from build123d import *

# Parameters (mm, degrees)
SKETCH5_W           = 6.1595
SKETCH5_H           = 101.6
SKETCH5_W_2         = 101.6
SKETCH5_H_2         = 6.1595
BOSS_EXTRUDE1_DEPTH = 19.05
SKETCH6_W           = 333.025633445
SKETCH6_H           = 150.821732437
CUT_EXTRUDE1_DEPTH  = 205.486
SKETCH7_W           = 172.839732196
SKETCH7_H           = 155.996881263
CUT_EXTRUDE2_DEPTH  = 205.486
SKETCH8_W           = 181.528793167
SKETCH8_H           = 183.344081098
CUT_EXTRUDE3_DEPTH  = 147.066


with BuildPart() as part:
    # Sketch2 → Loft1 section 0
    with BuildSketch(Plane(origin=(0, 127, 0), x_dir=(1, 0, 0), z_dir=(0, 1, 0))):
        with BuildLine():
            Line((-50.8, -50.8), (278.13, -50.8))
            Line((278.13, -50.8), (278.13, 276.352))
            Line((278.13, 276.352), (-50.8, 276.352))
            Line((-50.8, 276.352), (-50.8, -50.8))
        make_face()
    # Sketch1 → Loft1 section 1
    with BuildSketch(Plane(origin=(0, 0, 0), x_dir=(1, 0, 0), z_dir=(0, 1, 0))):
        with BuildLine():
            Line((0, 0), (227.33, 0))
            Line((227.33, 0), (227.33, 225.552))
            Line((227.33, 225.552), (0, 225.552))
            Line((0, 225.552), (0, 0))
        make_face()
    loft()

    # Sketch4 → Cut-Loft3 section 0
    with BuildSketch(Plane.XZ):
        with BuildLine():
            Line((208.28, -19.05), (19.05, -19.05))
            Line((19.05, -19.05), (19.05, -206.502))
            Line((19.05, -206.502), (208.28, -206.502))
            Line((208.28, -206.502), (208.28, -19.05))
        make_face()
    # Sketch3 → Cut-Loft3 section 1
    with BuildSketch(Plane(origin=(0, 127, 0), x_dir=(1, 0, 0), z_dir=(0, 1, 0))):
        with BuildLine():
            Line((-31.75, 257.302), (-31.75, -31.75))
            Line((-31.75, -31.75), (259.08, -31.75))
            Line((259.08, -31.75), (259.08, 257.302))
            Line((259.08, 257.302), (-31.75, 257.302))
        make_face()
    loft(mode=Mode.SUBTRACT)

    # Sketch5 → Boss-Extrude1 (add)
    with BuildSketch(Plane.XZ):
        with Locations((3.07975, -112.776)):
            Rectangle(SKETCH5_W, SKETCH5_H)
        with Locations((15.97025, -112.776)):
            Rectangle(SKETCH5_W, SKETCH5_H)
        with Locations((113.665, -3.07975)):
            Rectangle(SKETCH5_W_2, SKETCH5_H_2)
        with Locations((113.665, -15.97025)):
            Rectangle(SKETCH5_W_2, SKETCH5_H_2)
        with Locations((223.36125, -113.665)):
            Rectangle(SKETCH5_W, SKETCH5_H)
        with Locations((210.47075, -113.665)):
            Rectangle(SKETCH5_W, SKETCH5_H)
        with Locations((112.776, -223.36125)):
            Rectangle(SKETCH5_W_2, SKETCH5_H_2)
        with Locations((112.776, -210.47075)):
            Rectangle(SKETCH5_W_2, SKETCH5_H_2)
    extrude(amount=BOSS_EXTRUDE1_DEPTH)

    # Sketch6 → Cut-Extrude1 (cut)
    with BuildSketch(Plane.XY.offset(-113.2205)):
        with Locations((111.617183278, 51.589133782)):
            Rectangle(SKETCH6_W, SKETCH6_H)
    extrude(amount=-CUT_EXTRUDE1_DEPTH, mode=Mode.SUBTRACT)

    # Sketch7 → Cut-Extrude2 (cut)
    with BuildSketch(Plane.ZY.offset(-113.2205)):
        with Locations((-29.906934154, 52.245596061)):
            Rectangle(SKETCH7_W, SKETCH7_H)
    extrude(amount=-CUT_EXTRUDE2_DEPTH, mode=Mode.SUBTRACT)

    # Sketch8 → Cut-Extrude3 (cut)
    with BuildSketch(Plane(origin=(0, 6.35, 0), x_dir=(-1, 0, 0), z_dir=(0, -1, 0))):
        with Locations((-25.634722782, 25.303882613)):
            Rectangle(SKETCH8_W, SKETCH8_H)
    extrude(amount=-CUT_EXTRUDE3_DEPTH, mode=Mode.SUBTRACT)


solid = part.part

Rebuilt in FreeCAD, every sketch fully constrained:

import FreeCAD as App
import Part
import Sketcher

V = App.Vector
Q = App.Units.Quantity

doc = App.newDocument("Part")
body = doc.addObject("PartDesign::Body", "Body")

# Sketch on XZ plane
sketch1 = body.newObject("Sketcher::SketchObject", "Sketch")
sketch1.AttachmentSupport = (doc.getObject("XZ_Plane"), [""])
sketch1.MapMode = "FlatFace"
sketch1.AttachmentOffset = App.Placement(V(0, 0, -5 * 25.4), App.Rotation())
sketch1.addGeometry(Part.LineSegment(V(-51, 51, 0), V(278, 51, 0)), False)
sketch1.addGeometry(Part.LineSegment(V(278, 51, 0), V(278, -276, 0)), False)
sketch1.addGeometry(Part.LineSegment(V(278, -276, 0), V(-51, -276, 0)), False)
sketch1.addGeometry(Part.LineSegment(V(-51, -276, 0), V(-51, 51, 0)), False)
sketch1.addConstraint(Sketcher.Constraint("Coincident", 0, 2, 1, 1))
sketch1.addConstraint(Sketcher.Constraint("Coincident", 1, 2, 2, 1))
sketch1.addConstraint(Sketcher.Constraint("Coincident", 2, 2, 3, 1))
sketch1.addConstraint(Sketcher.Constraint("Coincident", 3, 2, 0, 1))
sketch1.addConstraint(Sketcher.Constraint("Horizontal", 0))
sketch1.addConstraint(Sketcher.Constraint("Vertical", 1))
sketch1.addConstraint(Sketcher.Constraint("Horizontal", 2))
sketch1.addConstraint(Sketcher.Constraint("Vertical", 3))
sketch1.addConstraint(Sketcher.Constraint("DistanceY", -1, 1, 0, 2, Q("2 in")))
sketch1.addConstraint(Sketcher.Constraint("DistanceX", 2, 2, -1, 1, Q("2 in")))
sketch1.addConstraint(Sketcher.Constraint("DistanceX", 0, 1, 0, 2, Q("12.95 in")))
sketch1.addConstraint(Sketcher.Constraint("DistanceY", 1, 2, 1, 1, Q("12.88 in")))

# Sketch on XZ plane
sketch2 = body.newObject("Sketcher::SketchObject", "Sketch001")
sketch2.AttachmentSupport = (doc.getObject("XZ_Plane"), [""])
sketch2.MapMode = "FlatFace"
sketch2.addGeometry(Part.LineSegment(V(0, 0, 0), V(227, 0, 0)), False)
sketch2.addGeometry(Part.LineSegment(V(227, 0, 0), V(227, -226, 0)), False)
sketch2.addGeometry(Part.LineSegment(V(227, -226, 0), V(0, -226, 0)), False)
sketch2.addGeometry(Part.LineSegment(V(0, -226, 0), V(0, 0, 0)), False)
sketch2.addConstraint(Sketcher.Constraint("Coincident", 0, 2, 1, 1))
sketch2.addConstraint(Sketcher.Constraint("Coincident", 1, 2, 2, 1))
sketch2.addConstraint(Sketcher.Constraint("Coincident", 2, 2, 3, 1))
sketch2.addConstraint(Sketcher.Constraint("Coincident", 3, 2, 0, 1))
sketch2.addConstraint(Sketcher.Constraint("Horizontal", 0))
sketch2.addConstraint(Sketcher.Constraint("Vertical", 1))
sketch2.addConstraint(Sketcher.Constraint("Horizontal", 2))
sketch2.addConstraint(Sketcher.Constraint("Vertical", 3))
sketch2.addConstraint(Sketcher.Constraint("Coincident", 3, 2, -1, 1))
sketch2.addConstraint(Sketcher.Constraint("DistanceX", 0, 1, 0, 2, Q("8.95 in")))
sketch2.addConstraint(Sketcher.Constraint("DistanceY", 1, 2, 1, 1, Q("8.88 in")))

additiveloft = body.newObject("PartDesign::AdditiveLoft", "AdditiveLoft")
additiveloft.Profile = sketch1
additiveloft.Sections = [sketch2]

# Sketch on XZ plane
sketch3 = body.newObject("Sketcher::SketchObject", "Sketch002")
sketch3.AttachmentSupport = (doc.getObject("XZ_Plane"), [""])
sketch3.MapMode = "FlatFace"
sketch3.addGeometry(Part.LineSegment(V(208, -19, 0), V(19, -19, 0)), False)
sketch3.addGeometry(Part.LineSegment(V(19, -19, 0), V(19, -207, 0)), False)
sketch3.addGeometry(Part.LineSegment(V(19, -207, 0), V(208, -207, 0)), False)
sketch3.addGeometry(Part.LineSegment(V(208, -207, 0), V(208, -19, 0)), False)
sketch3.addConstraint(Sketcher.Constraint("Coincident", 0, 2, 1, 1))
sketch3.addConstraint(Sketcher.Constraint("Coincident", 1, 2, 2, 1))
sketch3.addConstraint(Sketcher.Constraint("Coincident", 2, 2, 3, 1))
sketch3.addConstraint(Sketcher.Constraint("Coincident", 3, 2, 0, 1))
sketch3.addConstraint(Sketcher.Constraint("Horizontal", 0))
sketch3.addConstraint(Sketcher.Constraint("Vertical", 1))
sketch3.addConstraint(Sketcher.Constraint("Horizontal", 2))
sketch3.addConstraint(Sketcher.Constraint("Vertical", 3))
sketch3.addConstraint(Sketcher.Constraint("DistanceX", 0, 2, 0, 1, Q("7.45 in")))
sketch3.addConstraint(Sketcher.Constraint("DistanceY", 1, 2, 1, 1, Q("7.38 in")))
sketch3.addConstraint(Sketcher.Constraint("DistanceX", -1, 1, 2, 2, Q("8.2 in")))
sketch3.addConstraint(Sketcher.Constraint("DistanceY", 0, 2, -1, 1, Q("0.75 in")))

# Sketch on XZ plane
sketch4 = body.newObject("Sketcher::SketchObject", "Sketch003")
sketch4.AttachmentSupport = (doc.getObject("XZ_Plane"), [""])
sketch4.MapMode = "FlatFace"
sketch4.AttachmentOffset = App.Placement(V(0, 0, -5 * 25.4), App.Rotation())
sketch4.addGeometry(Part.LineSegment(V(-32, -257, 0), V(-32, 32, 0)), False)
sketch4.addGeometry(Part.LineSegment(V(-32, 32, 0), V(259, 32, 0)), False)
sketch4.addGeometry(Part.LineSegment(V(259, 32, 0), V(259, -257, 0)), False)
sketch4.addGeometry(Part.LineSegment(V(259, -257, 0), V(-32, -257, 0)), False)
sketch4.addConstraint(Sketcher.Constraint("Coincident", 0, 2, 1, 1))
sketch4.addConstraint(Sketcher.Constraint("Coincident", 1, 2, 2, 1))
sketch4.addConstraint(Sketcher.Constraint("Coincident", 2, 2, 3, 1))
sketch4.addConstraint(Sketcher.Constraint("Coincident", 3, 2, 0, 1))
sketch4.addConstraint(Sketcher.Constraint("Vertical", 0))
sketch4.addConstraint(Sketcher.Constraint("Horizontal", 1))
sketch4.addConstraint(Sketcher.Constraint("Vertical", 2))
sketch4.addConstraint(Sketcher.Constraint("Horizontal", 3))
sketch4.addConstraint(Sketcher.Constraint("DistanceX", 1, 1, 1, 2, Q("11.45 in")))
sketch4.addConstraint(Sketcher.Constraint("DistanceY", 0, 1, 0, 2, Q("11.38 in")))
sketch4.addConstraint(Sketcher.Constraint("DistanceX", -1, 1, 1, 2, Q("10.2 in")))
sketch4.addConstraint(Sketcher.Constraint("DistanceY", -1, 1, 0, 2, Q("1.25 in")))

subtractiveloft = body.newObject("PartDesign::SubtractiveLoft", "SubtractiveLoft")
subtractiveloft.Profile = sketch3
subtractiveloft.Sections = [sketch4]

# Sketch on XZ plane
sketch5 = body.newObject("Sketcher::SketchObject", "Sketch004")
sketch5.AttachmentSupport = (doc.getObject("XZ_Plane"), [""])
sketch5.MapMode = "FlatFace"
sketch5.addGeometry(Part.LineSegment(V(0, -62, 0), V(0, -164, 0)), False)
sketch5.addGeometry(Part.LineSegment(V(0, -164, 0), V(6, -164, 0)), False)
sketch5.addGeometry(Part.LineSegment(V(6, -164, 0), V(6, -62, 0)), False)
sketch5.addGeometry(Part.LineSegment(V(6, -62, 0), V(0, -62, 0)), False)
sketch5.addGeometry(Part.LineSegment(V(13, -62, 0), V(13, -164, 0)), False)
sketch5.addGeometry(Part.LineSegment(V(13, -164, 0), V(19, -164, 0)), False)
sketch5.addGeometry(Part.LineSegment(V(19, -164, 0), V(19, -62, 0)), False)
sketch5.addGeometry(Part.LineSegment(V(19, -62, 0), V(13, -62, 0)), False)
sketch5.addGeometry(Part.LineSegment(V(63, 0, 0), V(63, -6, 0)), False)
sketch5.addGeometry(Part.LineSegment(V(63, -6, 0), V(164, -6, 0)), False)
sketch5.addGeometry(Part.LineSegment(V(164, -6, 0), V(164, 0, 0)), False)
sketch5.addGeometry(Part.LineSegment(V(164, 0, 0), V(63, 0, 0)), False)
sketch5.addGeometry(Part.LineSegment(V(63, -13, 0), V(63, -19, 0)), False)
sketch5.addGeometry(Part.LineSegment(V(63, -19, 0), V(164, -19, 0)), False)
sketch5.addGeometry(Part.LineSegment(V(164, -19, 0), V(164, -13, 0)), False)
sketch5.addGeometry(Part.LineSegment(V(164, -13, 0), V(63, -13, 0)), False)
sketch5.addGeometry(Part.LineSegment(V(220, -63, 0), V(220, -164, 0)), False)
sketch5.addGeometry(Part.LineSegment(V(220, -164, 0), V(226, -164, 0)), False)
sketch5.addGeometry(Part.LineSegment(V(226, -164, 0), V(226, -63, 0)), False)
sketch5.addGeometry(Part.LineSegment(V(226, -63, 0), V(220, -63, 0)), False)
sketch5.addGeometry(Part.LineSegment(V(207, -63, 0), V(207, -164, 0)), False)
sketch5.addGeometry(Part.LineSegment(V(207, -164, 0), V(214, -164, 0)), False)
sketch5.addGeometry(Part.LineSegment(V(214, -164, 0), V(214, -63, 0)), False)
sketch5.addGeometry(Part.LineSegment(V(214, -63, 0), V(207, -63, 0)), False)
sketch5.addGeometry(Part.LineSegment(V(62, -220, 0), V(62, -226, 0)), False)
sketch5.addGeometry(Part.LineSegment(V(62, -226, 0), V(164, -226, 0)), False)
sketch5.addGeometry(Part.LineSegment(V(164, -226, 0), V(164, -220, 0)), False)
sketch5.addGeometry(Part.LineSegment(V(164, -220, 0), V(62, -220, 0)), False)
sketch5.addGeometry(Part.LineSegment(V(62, -207, 0), V(62, -214, 0)), False)
sketch5.addGeometry(Part.LineSegment(V(62, -214, 0), V(164, -214, 0)), False)
sketch5.addGeometry(Part.LineSegment(V(164, -214, 0), V(164, -207, 0)), False)
sketch5.addGeometry(Part.LineSegment(V(164, -207, 0), V(62, -207, 0)), False)
sketch5.addConstraint(Sketcher.Constraint("Coincident", 0, 2, 1, 1))
sketch5.addConstraint(Sketcher.Constraint("Coincident", 1, 2, 2, 1))
sketch5.addConstraint(Sketcher.Constraint("Coincident", 2, 2, 3, 1))
sketch5.addConstraint(Sketcher.Constraint("Coincident", 3, 2, 0, 1))
sketch5.addConstraint(Sketcher.Constraint("Coincident", 4, 2, 5, 1))
sketch5.addConstraint(Sketcher.Constraint("Coincident", 5, 2, 6, 1))
sketch5.addConstraint(Sketcher.Constraint("Coincident", 6, 2, 7, 1))
sketch5.addConstraint(Sketcher.Constraint("Coincident", 7, 2, 4, 1))
sketch5.addConstraint(Sketcher.Constraint("Coincident", 8, 2, 9, 1))
sketch5.addConstraint(Sketcher.Constraint("Coincident", 9, 2, 10, 1))
sketch5.addConstraint(Sketcher.Constraint("Coincident", 10, 2, 11, 1))
sketch5.addConstraint(Sketcher.Constraint("Coincident", 11, 2, 8, 1))
sketch5.addConstraint(Sketcher.Constraint("Coincident", 12, 2, 13, 1))
sketch5.addConstraint(Sketcher.Constraint("Coincident", 13, 2, 14, 1))
sketch5.addConstraint(Sketcher.Constraint("Coincident", 14, 2, 15, 1))
sketch5.addConstraint(Sketcher.Constraint("Coincident", 15, 2, 12, 1))
sketch5.addConstraint(Sketcher.Constraint("Coincident", 16, 2, 17, 1))
sketch5.addConstraint(Sketcher.Constraint("Coincident", 17, 2, 18, 1))
sketch5.addConstraint(Sketcher.Constraint("Coincident", 18, 2, 19, 1))
sketch5.addConstraint(Sketcher.Constraint("Coincident", 19, 2, 16, 1))
sketch5.addConstraint(Sketcher.Constraint("Coincident", 20, 2, 21, 1))
sketch5.addConstraint(Sketcher.Constraint("Coincident", 21, 2, 22, 1))
sketch5.addConstraint(Sketcher.Constraint("Coincident", 22, 2, 23, 1))
sketch5.addConstraint(Sketcher.Constraint("Coincident", 23, 2, 20, 1))
sketch5.addConstraint(Sketcher.Constraint("Coincident", 24, 2, 25, 1))
sketch5.addConstraint(Sketcher.Constraint("Coincident", 25, 2, 26, 1))
sketch5.addConstraint(Sketcher.Constraint("Coincident", 26, 2, 27, 1))
sketch5.addConstraint(Sketcher.Constraint("Coincident", 27, 2, 24, 1))
sketch5.addConstraint(Sketcher.Constraint("Coincident", 28, 2, 29, 1))
sketch5.addConstraint(Sketcher.Constraint("Coincident", 29, 2, 30, 1))
sketch5.addConstraint(Sketcher.Constraint("Coincident", 30, 2, 31, 1))
sketch5.addConstraint(Sketcher.Constraint("Coincident", 31, 2, 28, 1))
sketch5.addConstraint(Sketcher.Constraint("Vertical", 0))
sketch5.addConstraint(Sketcher.Constraint("Horizontal", 1))
sketch5.addConstraint(Sketcher.Constraint("Vertical", 2))
sketch5.addConstraint(Sketcher.Constraint("Horizontal", 3))
sketch5.addConstraint(Sketcher.Constraint("Vertical", 4))
sketch5.addConstraint(Sketcher.Constraint("Horizontal", 5))
sketch5.addConstraint(Sketcher.Constraint("Vertical", 6))
sketch5.addConstraint(Sketcher.Constraint("Horizontal", 7))
sketch5.addConstraint(Sketcher.Constraint("Vertical", 8))
sketch5.addConstraint(Sketcher.Constraint("Horizontal", 9))
sketch5.addConstraint(Sketcher.Constraint("Vertical", 10))
sketch5.addConstraint(Sketcher.Constraint("Horizontal", 11))
sketch5.addConstraint(Sketcher.Constraint("Vertical", 12))
sketch5.addConstraint(Sketcher.Constraint("Horizontal", 13))
sketch5.addConstraint(Sketcher.Constraint("Vertical", 14))
sketch5.addConstraint(Sketcher.Constraint("Horizontal", 15))
sketch5.addConstraint(Sketcher.Constraint("Vertical", 16))
sketch5.addConstraint(Sketcher.Constraint("Horizontal", 17))
sketch5.addConstraint(Sketcher.Constraint("Vertical", 18))
sketch5.addConstraint(Sketcher.Constraint("Horizontal", 19))
sketch5.addConstraint(Sketcher.Constraint("Vertical", 20))
sketch5.addConstraint(Sketcher.Constraint("Horizontal", 21))
sketch5.addConstraint(Sketcher.Constraint("Vertical", 22))
sketch5.addConstraint(Sketcher.Constraint("Horizontal", 23))
sketch5.addConstraint(Sketcher.Constraint("Vertical", 24))
sketch5.addConstraint(Sketcher.Constraint("Horizontal", 25))
sketch5.addConstraint(Sketcher.Constraint("Vertical", 26))
sketch5.addConstraint(Sketcher.Constraint("Horizontal", 27))
sketch5.addConstraint(Sketcher.Constraint("Vertical", 28))
sketch5.addConstraint(Sketcher.Constraint("Horizontal", 29))
sketch5.addConstraint(Sketcher.Constraint("Vertical", 30))
sketch5.addConstraint(Sketcher.Constraint("Horizontal", 31))
sketch5.addConstraint(Sketcher.Constraint("PointOnObject", 0, 2, -2))
sketch5.addConstraint(Sketcher.Constraint("PointOnObject", 10, 2, -1))
sketch5.addConstraint(Sketcher.Constraint("Horizontal", 1, 2, 4, 2))
sketch5.addConstraint(Sketcher.Constraint("Horizontal", 3, 2, 6, 2))
sketch5.addConstraint(Sketcher.Constraint("Horizontal", 17, 2, 20, 2))
sketch5.addConstraint(Sketcher.Constraint("Horizontal", 19, 2, 22, 2))
sketch5.addConstraint(Sketcher.Constraint("Vertical", 11, 2, 12, 2))
sketch5.addConstraint(Sketcher.Constraint("Vertical", 10, 2, 13, 2))
sketch5.addConstraint(Sketcher.Constraint("Vertical", 27, 2, 28, 2))
sketch5.addConstraint(Sketcher.Constraint("Vertical", 26, 2, 29, 2))
sketch5.addConstraint(Sketcher.Constraint("Equal", 3, 5))
sketch5.addConstraint(Sketcher.Constraint("Equal", 7, 17))
sketch5.addConstraint(Sketcher.Constraint("Equal", 19, 21))
sketch5.addConstraint(Sketcher.Constraint("Equal", 15, 25))
sketch5.addConstraint(Sketcher.Constraint("Equal", 31, 0))
sketch5.addConstraint(Sketcher.Constraint("Equal", 23, 8))
sketch5.addConstraint(Sketcher.Constraint("Equal", 10, 12))
sketch5.addConstraint(Sketcher.Constraint("Equal", 6, 16))
sketch5.addConstraint(Sketcher.Constraint("Equal", 14, 24))
sketch5.addConstraint(Sketcher.Constraint("Equal", 26, 28))
sketch5.addConstraint(Sketcher.Constraint("DistanceX", 9, 1, 9, 2, Q("4 in")))
sketch5.addConstraint(Sketcher.Constraint("DistanceY", 0, 2, -1, 1, Q("6.44 in")))
sketch5.addConstraint(Sketcher.Constraint("DistanceX", -1, 1, 5, 2, Q("0.75 in")))
sketch5.addConstraint(Sketcher.Constraint("DistanceY", 12, 2, -1, 1, Q("0.75 in")))
sketch5.addConstraint(Sketcher.Constraint("DistanceX", -1, 1, 24, 2, Q("2.44 in")))
sketch5.addConstraint(Sketcher.Constraint("DistanceX", 13, 2, 17, 2, Q("2.44 in")))
sketch5.addConstraint(Sketcher.Constraint("DistanceX", 20, 2, 17, 2, Q("0.75 in")))
sketch5.addConstraint(Sketcher.Constraint("DistanceY", 24, 2, 20, 2, Q("2.44 in")))
sketch5.addConstraint(Sketcher.Constraint("DistanceY", 25, 2, 30, 2, Q("0.75 in")))
sketch5.addConstraint(Sketcher.Constraint("DistanceX", 1, 1, 1, 2, Q("0.2425 in")))
sketch5.addConstraint(Sketcher.Constraint("DistanceX", -1, 1, 8, 2, Q("2.475 in")))
sketch5.addConstraint(Sketcher.Constraint("DistanceY", 16, 2, -1, 1, Q("6.475 in")))
pad1 = body.newObject("PartDesign::Pad", "Pad")
pad1.Profile = sketch5
pad1.Length = Q("0.75 in")

# Sketch on XY plane
sketch6 = body.newObject("Sketcher::SketchObject", "Sketch005")
sketch6.AttachmentSupport = (doc.getObject("XY_Plane"), [""])
sketch6.MapMode = "FlatFace"
sketch6.AttachmentOffset = App.Placement(V(0, 0, -4.4575 * 25.4), App.Rotation())
sketch6.addGeometry(Part.LineSegment(V(-55, 127, 0), V(-55, -24, 0)), False)
sketch6.addGeometry(Part.LineSegment(V(-55, -24, 0), V(278, -24, 0)), False)
sketch6.addGeometry(Part.LineSegment(V(278, -24, 0), V(278, 127, 0)), False)
sketch6.addGeometry(Part.LineSegment(V(278, 127, 0), V(-55, 127, 0)), False)
sketch6.addConstraint(Sketcher.Constraint("Coincident", 0, 2, 1, 1))
sketch6.addConstraint(Sketcher.Constraint("Coincident", 1, 2, 2, 1))
sketch6.addConstraint(Sketcher.Constraint("Coincident", 2, 2, 3, 1))
sketch6.addConstraint(Sketcher.Constraint("Coincident", 3, 2, 0, 1))
sketch6.addConstraint(Sketcher.Constraint("Vertical", 0))
sketch6.addConstraint(Sketcher.Constraint("Horizontal", 1))
sketch6.addConstraint(Sketcher.Constraint("Vertical", 2))
sketch6.addConstraint(Sketcher.Constraint("Horizontal", 3))
sketch6.addConstraint(Sketcher.Constraint("DistanceY", -1, 1, 2, 2, Q("5 in")))
sketch6.addConstraint(Sketcher.Constraint("DistanceX", -1, 1, 1, 2, Q("10.95 in")))
sketch6.addConstraint(Sketcher.Constraint("DistanceX", 1, 1, 1, 2, 333.025633))
sketch6.addConstraint(Sketcher.Constraint("DistanceY", 0, 2, 0, 1, 150.821732))
pocket1 = body.newObject("PartDesign::Pocket", "Pocket")
pocket1.Profile = sketch6
pocket1.Length = Q("8.09 in")

# Sketch on YZ plane
sketch7 = body.newObject("Sketcher::SketchObject", "Sketch006")
sketch7.AttachmentSupport = (doc.getObject("YZ_Plane"), [""])
sketch7.MapMode = "FlatFace"
sketch7.AttachmentOffset = App.Placement(V(0, 0, 4.4575 * 25.4), App.Rotation())
sketch7.addGeometry(Part.LineSegment(V(130, -116, 0), V(-26, -116, 0)), False)
sketch7.addGeometry(Part.LineSegment(V(-26, -116, 0), V(-26, 57, 0)), False)
sketch7.addGeometry(Part.LineSegment(V(-26, 57, 0), V(130, 57, 0)), False)
sketch7.addGeometry(Part.LineSegment(V(130, 57, 0), V(130, -116, 0)), False)
sketch7.addConstraint(Sketcher.Constraint("Coincident", 0, 2, 1, 1))
sketch7.addConstraint(Sketcher.Constraint("Coincident", 1, 2, 2, 1))
sketch7.addConstraint(Sketcher.Constraint("Coincident", 2, 2, 3, 1))
sketch7.addConstraint(Sketcher.Constraint("Coincident", 3, 2, 0, 1))
sketch7.addConstraint(Sketcher.Constraint("Horizontal", 0))
sketch7.addConstraint(Sketcher.Constraint("Vertical", 1))
sketch7.addConstraint(Sketcher.Constraint("Horizontal", 2))
sketch7.addConstraint(Sketcher.Constraint("Vertical", 3))
sketch7.addConstraint(Sketcher.Constraint("DistanceX", 0, 2, 0, 1, 155.996881))
sketch7.addConstraint(Sketcher.Constraint("DistanceY", 0, 2, -1, 1, 116.3268))
sketch7.addConstraint(Sketcher.Constraint("DistanceY", 1, 1, 1, 2, 172.839732))
sketch7.addConstraint(Sketcher.Constraint("DistanceX", 0, 2, -1, 1, 25.752845))
pocket2 = body.newObject("PartDesign::Pocket", "Pocket001")
pocket2.Profile = sketch7
pocket2.Length = Q("8.09 in")
pocket2.Reversed = True

# Sketch on XZ plane
sketch8 = body.newObject("Sketcher::SketchObject", "Sketch007")
sketch8.AttachmentSupport = (doc.getObject("XZ_Plane"), [""])
sketch8.MapMode = "FlatFace"
sketch8.AttachmentOffset = App.Placement(V(0, 0, -0.25 * 25.4), App.Rotation())
sketch8.addGeometry(Part.LineSegment(V(116, -117, 0), V(116, 66, 0)), False)
sketch8.addGeometry(Part.LineSegment(V(116, 66, 0), V(-65, 66, 0)), False)
sketch8.addGeometry(Part.LineSegment(V(-65, 66, 0), V(-65, -117, 0)), False)
sketch8.addGeometry(Part.LineSegment(V(-65, -117, 0), V(116, -117, 0)), False)
sketch8.addConstraint(Sketcher.Constraint("Coincident", 0, 2, 1, 1))
sketch8.addConstraint(Sketcher.Constraint("Coincident", 1, 2, 2, 1))
sketch8.addConstraint(Sketcher.Constraint("Coincident", 2, 2, 3, 1))
sketch8.addConstraint(Sketcher.Constraint("Coincident", 3, 2, 0, 1))
sketch8.addConstraint(Sketcher.Constraint("Vertical", 0))
sketch8.addConstraint(Sketcher.Constraint("Horizontal", 1))
sketch8.addConstraint(Sketcher.Constraint("Vertical", 2))
sketch8.addConstraint(Sketcher.Constraint("Horizontal", 3))
sketch8.addConstraint(Sketcher.Constraint("DistanceY", 0, 1, 0, 2, 183.344081))
sketch8.addConstraint(Sketcher.Constraint("DistanceX", 1, 2, 1, 1, 181.528793))
sketch8.addConstraint(Sketcher.Constraint("DistanceX", -1, 1, 0, 2, 116.399119))
sketch8.addConstraint(Sketcher.Constraint("DistanceY", -1, 1, 0, 2, 66.368158))
pocket3 = body.newObject("PartDesign::Pocket", "Pocket002")
pocket3.Profile = sketch8
pocket3.Length = Q("5.79 in")

doc.recompute()
